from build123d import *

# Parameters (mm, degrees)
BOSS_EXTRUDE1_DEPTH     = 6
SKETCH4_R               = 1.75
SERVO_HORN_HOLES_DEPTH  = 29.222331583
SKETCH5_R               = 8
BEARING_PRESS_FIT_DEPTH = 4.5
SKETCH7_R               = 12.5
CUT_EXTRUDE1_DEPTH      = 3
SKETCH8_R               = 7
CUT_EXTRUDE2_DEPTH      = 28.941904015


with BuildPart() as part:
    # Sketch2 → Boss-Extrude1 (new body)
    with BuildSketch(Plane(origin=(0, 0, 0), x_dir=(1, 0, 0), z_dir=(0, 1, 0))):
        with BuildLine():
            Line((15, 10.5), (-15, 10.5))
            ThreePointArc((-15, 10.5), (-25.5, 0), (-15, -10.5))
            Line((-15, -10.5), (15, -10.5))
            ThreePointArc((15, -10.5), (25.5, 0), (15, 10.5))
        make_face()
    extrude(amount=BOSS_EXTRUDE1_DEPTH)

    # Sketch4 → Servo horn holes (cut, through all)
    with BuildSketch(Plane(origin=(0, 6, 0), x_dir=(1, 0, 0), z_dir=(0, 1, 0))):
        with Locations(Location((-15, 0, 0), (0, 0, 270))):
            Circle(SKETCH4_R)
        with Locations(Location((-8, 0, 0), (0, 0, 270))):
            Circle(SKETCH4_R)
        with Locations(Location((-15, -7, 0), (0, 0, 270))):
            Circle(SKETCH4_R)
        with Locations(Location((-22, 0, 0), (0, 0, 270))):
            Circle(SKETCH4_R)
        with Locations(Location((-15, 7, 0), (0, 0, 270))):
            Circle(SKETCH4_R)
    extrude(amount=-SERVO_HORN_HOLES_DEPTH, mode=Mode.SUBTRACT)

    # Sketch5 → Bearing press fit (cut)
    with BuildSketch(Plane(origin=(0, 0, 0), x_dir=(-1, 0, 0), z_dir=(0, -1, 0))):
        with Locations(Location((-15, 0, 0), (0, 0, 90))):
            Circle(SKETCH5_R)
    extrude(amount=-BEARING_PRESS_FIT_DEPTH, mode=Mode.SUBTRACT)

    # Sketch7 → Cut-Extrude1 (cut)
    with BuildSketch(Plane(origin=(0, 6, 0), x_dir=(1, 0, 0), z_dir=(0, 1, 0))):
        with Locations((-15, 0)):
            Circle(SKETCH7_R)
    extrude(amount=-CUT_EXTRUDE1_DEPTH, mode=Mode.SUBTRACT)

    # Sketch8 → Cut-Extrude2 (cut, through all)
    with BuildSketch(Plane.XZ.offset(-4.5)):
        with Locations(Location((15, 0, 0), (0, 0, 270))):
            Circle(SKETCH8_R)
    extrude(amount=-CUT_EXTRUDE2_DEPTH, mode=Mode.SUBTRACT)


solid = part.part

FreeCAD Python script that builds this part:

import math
import FreeCAD as App
import Part
import Sketcher
from FreeCAD import Vector
Q = App.Units.Quantity

doc = App.newDocument("Part")
body = doc.addObject("PartDesign::Body", "Body")

# Sketch on XZ plane
sketch1 = doc.addObject("Sketcher::SketchObject", "Sketch")
body.addObject(sketch1)
sketch1.AttachmentSupport = (doc.XZ_Plane, [""])
sketch1.MapMode = "FlatFace"
sketch1.addGeometry([
    Part.LineSegment(Vector(15, -10, 0), Vector(-15, -10, 0)),
    Part.ArcOfCircle(Part.Circle(Vector(-15, 0, 0), Vector(0, 0, 1), 10), math.radians(90), math.radians(270)),
    Part.LineSegment(Vector(-15, 10, 0), Vector(15, 10, 0)),
    Part.ArcOfCircle(Part.Circle(Vector(15, 0, 0), Vector(0, 0, 1), 10), math.radians(-90), math.radians(90)),
], False)
sketch1.addConstraint([
    Sketcher.Constraint("Tangent", 0, 2, 1, 2),
    Sketcher.Constraint("Tangent", 1, 1, 2, 1),
    Sketcher.Constraint("Tangent", 2, 2, 3, 2),
    Sketcher.Constraint("Tangent", 3, 1, 0, 1),
    Sketcher.Constraint("Horizontal", 0),
    Sketcher.Constraint("Horizontal", 2),
    Sketcher.Constraint("Symmetric", 1, 3, 3, 3, -1, 1),
    Sketcher.Constraint("Radius", 1, Q("10.5 mm")),
    Sketcher.Constraint("DistanceX", 0, 2, 0, 1, Q("30 mm")),
])
pad1 = doc.addObject("PartDesign::Pad", "Pad")
body.addObject(pad1)
pad1.Profile = sketch1
pad1.Length = 6
pad1.Reversed = True

# Sketch on XZ plane
sketch2 = doc.addObject("Sketcher::SketchObject", "Sketch001")
body.addObject(sketch2)
sketch2.AttachmentSupport = (doc.XZ_Plane, [""])
sketch2.MapMode = "FlatFace"
sketch2.AttachmentOffset = App.Placement(Vector(0, 0, -6), App.Rotation())
sketch2.addGeometry([
    Part.Circle(Vector(-15, 0, 0), Vector(0, 0, 1), 1.8),  # 0
    Part.Circle(Vector(-8, 0, 0), Vector(0, 0, 1), 1.8),  # 1
    Part.Circle(Vector(-15, 7, 0), Vector(0, 0, 1), 1.8),  # 2
    Part.Circle(Vector(-22, 0, 0), Vector(0, 0, 1), 1.8),  # 3
    Part.Circle(Vector(-15, -7, 0), Vector(0, 0, 1), 1.8),  # 4
], False)
sketch2.addConstraint([
    Sketcher.Constraint("Equal", 0, 1),
    Sketcher.Constraint("Equal", 1, 2),
    Sketcher.Constraint("Equal", 2, 3),
    Sketcher.Constraint("Equal", 3, 4),
    Sketcher.Constraint("Symmetric", 2, 3, 4, 3, -1),
    Sketcher.Constraint("PointOnObject", 0, 3, -1),
    Sketcher.Constraint("PointOnObject", 1, 3, -1),
    Sketcher.Constraint("PointOnObject", 3, 3, -1),
    Sketcher.Constraint("Vertical", 0, 3, 2, 3),
    Sketcher.Constraint("Diameter", 0, Q("3.5 mm")),
    Sketcher.Constraint("DistanceX", 0, 3, -1, 1, Q("15 mm")),
    Sketcher.Constraint("DistanceX", 1, 3, -1, 1, Q("8 mm")),
    Sketcher.Constraint("DistanceY", -1, 1, 2, 3, Q("7 mm")),
    Sketcher.Constraint("DistanceX", 3, 3, -1, 1, Q("22 mm")),
])
pocket1 = doc.addObject("PartDesign::Pocket", "Pocket")
body.addObject(pocket1)
pocket1.Profile = sketch2
pocket1.Type = "ThroughAll"
pocket1.Reversed = True

# Sketch on XZ plane
sketch3 = doc.addObject("Sketcher::SketchObject", "Sketch002")
body.addObject(sketch3)
sketch3.AttachmentSupport = (doc.XZ_Plane, [""])
sketch3.MapMode = "FlatFace"
sketch3.addGeometry(Part.Circle(Vector(15, 0, 0), Vector(0, 0, 1), 8), False)
sketch3.addConstraint([
    Sketcher.Constraint("PointOnObject", 0, 3, -1),
    Sketcher.Constraint("Diameter", 0, Q("16 mm")),
    Sketcher.Constraint("DistanceX", -1, 1, 0, 3, Q("15 mm")),
])
pocket2 = doc.addObject("PartDesign::Pocket", "Pocket001")
body.addObject(pocket2)
pocket2.Profile = sketch3
pocket2.Length = 4.5

# Sketch on XZ plane
sketch4 = doc.addObject("Sketcher::SketchObject", "Sketch003")
body.addObject(sketch4)
sketch4.AttachmentSupport = (doc.XZ_Plane, [""])
sketch4.MapMode = "FlatFace"
sketch4.AttachmentOffset = App.Placement(Vector(0, 0, -6), App.Rotation())
sketch4.addGeometry(Part.Circle(Vector(-15, 0, 0), Vector(0, 0, 1), 12), False)
sketch4.addConstraint([
    Sketcher.Constraint("PointOnObject", 0, 3, -1),
    Sketcher.Constraint("Diameter", 0, Q("25 mm")),
    Sketcher.Constraint("DistanceX", 0, 3, -1, 1, Q("15 mm")),
])
pocket3 = doc.addObject("PartDesign::Pocket", "Pocket002")
body.addObject(pocket3)
pocket3.Profile = sketch4
pocket3.Length = 3
pocket3.Reversed = True

# Sketch on XZ plane
sketch5 = doc.addObject("Sketcher::SketchObject", "Sketch004")
body.addObject(sketch5)
sketch5.AttachmentSupport = (doc.XZ_Plane, [""])
sketch5.MapMode = "FlatFace"
sketch5.AttachmentOffset = App.Placement(Vector(0, 0, -4.5), App.Rotation())
sketch5.addGeometry(Part.Circle(Vector(15, 0, 0), Vector(0, 0, 1), 7), False)
sketch5.addConstraint([
    Sketcher.Constraint("PointOnObject", 0, 3, -1),
    Sketcher.Constraint("Diameter", 0, Q("14 mm")),
    Sketcher.Constraint("DistanceX", -1, 1, 0, 3, Q("15 mm")),
])
pocket4 = doc.addObject("PartDesign::Pocket", "Pocket003")
body.addObject(pocket4)
pocket4.Profile = sketch5
pocket4.Type = "ThroughAll"

doc.recompute()
